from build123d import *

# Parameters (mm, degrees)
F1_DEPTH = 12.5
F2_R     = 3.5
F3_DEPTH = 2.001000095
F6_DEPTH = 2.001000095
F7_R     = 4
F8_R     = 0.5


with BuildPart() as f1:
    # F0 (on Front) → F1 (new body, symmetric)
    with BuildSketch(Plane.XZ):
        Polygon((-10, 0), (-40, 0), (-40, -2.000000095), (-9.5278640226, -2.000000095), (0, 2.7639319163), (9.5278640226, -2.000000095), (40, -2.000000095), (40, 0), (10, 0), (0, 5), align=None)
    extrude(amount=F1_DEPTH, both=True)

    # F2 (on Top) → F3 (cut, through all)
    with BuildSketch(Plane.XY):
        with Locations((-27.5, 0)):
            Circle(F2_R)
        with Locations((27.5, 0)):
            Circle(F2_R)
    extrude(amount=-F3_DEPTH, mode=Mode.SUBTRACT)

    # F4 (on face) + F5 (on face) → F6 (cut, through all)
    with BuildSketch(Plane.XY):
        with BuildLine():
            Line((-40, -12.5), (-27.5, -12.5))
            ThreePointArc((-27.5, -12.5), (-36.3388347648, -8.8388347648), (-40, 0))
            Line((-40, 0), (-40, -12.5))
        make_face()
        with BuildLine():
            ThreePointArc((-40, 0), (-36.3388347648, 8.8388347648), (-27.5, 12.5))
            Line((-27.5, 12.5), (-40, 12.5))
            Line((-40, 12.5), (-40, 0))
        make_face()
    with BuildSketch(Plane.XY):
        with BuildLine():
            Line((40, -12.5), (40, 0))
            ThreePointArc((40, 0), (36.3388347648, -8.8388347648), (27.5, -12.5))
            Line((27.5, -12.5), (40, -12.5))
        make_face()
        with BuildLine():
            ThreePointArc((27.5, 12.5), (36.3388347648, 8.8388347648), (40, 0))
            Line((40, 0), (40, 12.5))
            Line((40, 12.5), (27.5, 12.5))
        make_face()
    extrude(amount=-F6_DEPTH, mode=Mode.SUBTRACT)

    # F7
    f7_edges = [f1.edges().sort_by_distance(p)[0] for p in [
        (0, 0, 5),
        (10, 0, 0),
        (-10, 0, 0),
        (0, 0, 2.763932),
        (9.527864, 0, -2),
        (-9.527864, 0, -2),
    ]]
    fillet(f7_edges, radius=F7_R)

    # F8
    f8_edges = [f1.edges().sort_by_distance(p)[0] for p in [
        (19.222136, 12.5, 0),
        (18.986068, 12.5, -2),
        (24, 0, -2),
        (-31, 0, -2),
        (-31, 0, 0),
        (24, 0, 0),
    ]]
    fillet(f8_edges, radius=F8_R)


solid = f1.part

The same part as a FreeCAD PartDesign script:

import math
import FreeCAD as App
import Part
import Sketcher
from FreeCAD import Vector


def edges_at(feature, points):
    """Names of the edges that pass closest to the given points."""
    edges = feature.Shape.Edges
    near = lambda p: min(range(len(edges)), key=lambda i: edges[i].distToShape(Part.Vertex(*p))[0])
    return sorted({f"Edge{near(p) + 1}" for p in points})


def add_polygon(sketch, points):
    """Adds a closed chain of lines whose ends are joined by coincident constraints."""
    first, n = sketch.GeometryCount, len(points)
    for a, b in zip(points, points[1:] + points[:1]):
        sketch.addGeometry(Part.LineSegment(App.Vector(*a, 0), App.Vector(*b, 0)), False)
    for i in range(n):
        sketch.addConstraint(Sketcher.Constraint("Coincident", first + i, 2, first + (i + 1) % n, 1))

doc = App.newDocument("Part")
params = doc.addObject("Spreadsheet::Sheet", "Params")
for row, (alias, value) in enumerate([
    ("sketch1_width", "30 mm"),
    ("sketch1_height", "2 mm"),
    ("pad1_length", "25 mm"),
    ("sketch2_diameter", "7 mm"),
    ("sketch3_radius", "12.5 mm"),
    ("fillet_radius", "4 mm"),
    ("fillet2_radius", "0.5 mm"),
], start=1):
    params.set(f"A{row}", alias)
    params.set(f"B{row}", "=" + value)
    params.setAlias(f"B{row}", alias)

body = doc.addObject("PartDesign::Body", "Body")

# Sketch on XZ plane
sketch1 = doc.addObject("Sketcher::SketchObject", "Sketch")
body.addObject(sketch1)
sketch1.AttachmentSupport = (doc.XZ_Plane, [""])
sketch1.MapMode = "FlatFace"
add_polygon(sketch1, [(-10, 0), (-40, 0), (-40, -2), (-9.5, -2), (0, 2.8), (9.5, -2), (40, -2), (40, 0), (10, 0), (0, 5)])  # lines 0-9
sketch1.addConstraint([
    Sketcher.Constraint("Horizontal", 0),
    Sketcher.Constraint("Vertical", 1),
    Sketcher.Constraint("Horizontal", 2),
    Sketcher.Constraint("Horizontal", 5),
    Sketcher.Constraint("Vertical", 6),
    Sketcher.Constraint("Horizontal", 7),
    Sketcher.Constraint("Symmetric", 0, 2, 6, 2, -1, 1),
    Sketcher.Constraint("Symmetric", 2, 2, 4, 2, -2),
    Sketcher.Constraint("Symmetric", 7, 2, 9, 2, -2),
    Sketcher.Constraint("PointOnObject", 3, 2, -2),
    Sketcher.Constraint("PointOnObject", 8, 2, -2),
    Sketcher.Constraint("Parallel", 4, 8),
    Sketcher.Constraint("DistanceX", 0, 2, 0, 1, 30.0),
    Sketcher.Constraint("DistanceY", 1, 2, 1, 1, 2.0),
    Sketcher.Constraint("DistanceX", 0, 2, -1, 1, 40.0),
    Sketcher.Constraint("DistanceY", -1, 1, 8, 2, 5.0),
    Sketcher.Constraint("DistanceX", 2, 1, 2, 2, 30.472136),
])
sketch1.setExpression("Constraints[22]", "Params.sketch1_width")
sketch1.setExpression("Constraints[23]", "Params.sketch1_height")
pad1 = doc.addObject("PartDesign::Pad", "Pad")
body.addObject(pad1)
pad1.Profile = sketch1
pad1.setExpression("Length", "Params.pad1_length")
pad1.Midplane = True

# Sketch on XY plane
sketch2 = doc.addObject("Sketcher::SketchObject", "Sketch001")
body.addObject(sketch2)
sketch2.AttachmentSupport = (doc.XY_Plane, [""])
sketch2.MapMode = "FlatFace"
sketch2.addGeometry([
    Part.Circle(Vector(-27.5, 0, 0), Vector(0, 0, 1), 3.5),
    Part.Circle(Vector(27.5, 0, 0), Vector(0, 0, 1), 3.5),
], False)
sketch2.addConstraint([
    Sketcher.Constraint("Equal", 0, 1),
    Sketcher.Constraint("Symmetric", 0, 3, 1, 3, -1, 1),
    Sketcher.Constraint("PointOnObject", 0, 3, -1),
    Sketcher.Constraint("Diameter", 0, 7.0),
    Sketcher.Constraint("DistanceX", 0, 3, 1, 3, 55.0),
])
sketch2.setExpression("Constraints[3]", "Params.sketch2_diameter")
pocket1 = doc.addObject("PartDesign::Pocket", "Pocket")
body.addObject(pocket1)
pocket1.Profile = sketch2
pocket1.Type = "ThroughAll"

# Sketch on XY plane
sketch3 = doc.addObject("Sketcher::SketchObject", "Sketch002")
body.addObject(sketch3)
sketch3.AttachmentSupport = (doc.XY_Plane, [""])
sketch3.MapMode = "FlatFace"
sketch3.addGeometry([
    Part.LineSegment(Vector(-40, -12, 0), Vector(-28, -12, 0)),  # 0
    Part.ArcOfCircle(Part.Circle(Vector(-28, 0, 0), Vector(0, 0, 1), 12), math.radians(180), math.radians(270)),  # 1
    Part.LineSegment(Vector(-40, 0, 0), Vector(-40, -12, 0)),  # 2
    Part.ArcOfCircle(Part.Circle(Vector(-28, 0, 0), Vector(0, 0, 1), 12), math.radians(90), math.radians(180)),  # 3
    Part.LineSegment(Vector(-28, 12, 0), Vector(-40, 12, 0)),  # 4
    Part.LineSegment(Vector(-40, 12, 0), Vector(-40, 0, 0)),  # 5
    Part.LineSegment(Vector(40, -12, 0), Vector(40, 0, 0)),  # 6
    Part.ArcOfCircle(Part.Circle(Vector(28, 0, 0), Vector(0, 0, 1), 12), math.radians(-90), math.radians(0)),  # 7
    Part.LineSegment(Vector(28, -12, 0), Vector(40, -12, 0)),  # 8
    Part.ArcOfCircle(Part.Circle(Vector(28, 0, 0), Vector(0, 0, 1), 12), math.radians(0), math.radians(90)),  # 9
    Part.LineSegment(Vector(40, 0, 0), Vector(40, 12, 0)),  # 10
    Part.LineSegment(Vector(40, 12, 0), Vector(28, 12, 0)),  # 11
], False)
sketch3.addConstraint([
    Sketcher.Constraint("Tangent", 0, 2, 1, 2),
    Sketcher.Constraint("Tangent", 1, 1, 2, 1),
    Sketcher.Constraint("Coincident", 2, 2, 0, 1),
    Sketcher.Constraint("Tangent", 3, 1, 4, 1),
    Sketcher.Constraint("Coincident", 4, 2, 5, 1),
    Sketcher.Constraint("Tangent", 5, 2, 3, 2),
    Sketcher.Constraint("Tangent", 6, 2, 7, 2),
    Sketcher.Constraint("Tangent", 7, 1, 8, 1),
    Sketcher.Constraint("Coincident", 8, 2, 6, 1),
    Sketcher.Constraint("Tangent", 9, 1, 10, 1),
    Sketcher.Constraint("Coincident", 10, 2, 11, 1),
    Sketcher.Constraint("Tangent", 11, 2, 9, 2),
    Sketcher.Constraint("Horizontal", 0),
    Sketcher.Constraint("Vertical", 2),
    Sketcher.Constraint("Horizontal", 4),
    Sketcher.Constraint("Vertical", 5),
    Sketcher.Constraint("Vertical", 6),
    Sketcher.Constraint("Horizontal", 8),
    Sketcher.Constraint("Vertical", 10),
    Sketcher.Constraint("Horizontal", 11),
    Sketcher.Constraint("Coincident", 3, 3, 1, 3),
    Sketcher.Constraint("Coincident", 9, 3, 7, 3),
    Sketcher.Constraint("Equal", 1, 3),
    Sketcher.Constraint("Equal", 3, 7),
    Sketcher.Constraint("Equal", 7, 9),
    Sketcher.Constraint("Symmetric", 1, 3, 7, 3, -1, 1),
    Sketcher.Constraint("PointOnObject", 1, 3, -1),
    Sketcher.Constraint("Radius", 1, 12.5),
    Sketcher.Constraint("DistanceX", 1, 1, -1, 1, 40.0),
])
sketch3.setExpression("Constraints[27]", "Params.sketch3_radius")
pocket2 = doc.addObject("PartDesign::Pocket", "Pocket001")
body.addObject(pocket2)
pocket2.Profile = sketch3
pocket2.Type = "ThroughAll"
doc.recompute()

fillet = doc.addObject("PartDesign::Fillet", "Fillet")
body.addObject(fillet)
fillet.Base = (pocket2, edges_at(pocket2, [
    (0, 0, 5),
    (10, 0, 0),
    (-10, 0, 0),
    (0, 0, 2.764),
    (9.528, 0, -2),
    (-9.528, 0, -2),
]))
fillet.setExpression("Radius", "Params.fillet_radius")
doc.recompute()

fillet2 = doc.addObject("PartDesign::Fillet", "Fillet001")
body.addObject(fillet2)
fillet2.Base = (fillet, edges_at(fillet, [
    (19.222, 12.5, 0),
    (18.986, 12.5, -2),
    (24, 0, -2),
    (-31, 0, -2),
    (-31, 0, 0),
    (24, 0, 0),
]))
fillet2.setExpression("Radius", "Params.fillet2_radius")

doc.recompute()
